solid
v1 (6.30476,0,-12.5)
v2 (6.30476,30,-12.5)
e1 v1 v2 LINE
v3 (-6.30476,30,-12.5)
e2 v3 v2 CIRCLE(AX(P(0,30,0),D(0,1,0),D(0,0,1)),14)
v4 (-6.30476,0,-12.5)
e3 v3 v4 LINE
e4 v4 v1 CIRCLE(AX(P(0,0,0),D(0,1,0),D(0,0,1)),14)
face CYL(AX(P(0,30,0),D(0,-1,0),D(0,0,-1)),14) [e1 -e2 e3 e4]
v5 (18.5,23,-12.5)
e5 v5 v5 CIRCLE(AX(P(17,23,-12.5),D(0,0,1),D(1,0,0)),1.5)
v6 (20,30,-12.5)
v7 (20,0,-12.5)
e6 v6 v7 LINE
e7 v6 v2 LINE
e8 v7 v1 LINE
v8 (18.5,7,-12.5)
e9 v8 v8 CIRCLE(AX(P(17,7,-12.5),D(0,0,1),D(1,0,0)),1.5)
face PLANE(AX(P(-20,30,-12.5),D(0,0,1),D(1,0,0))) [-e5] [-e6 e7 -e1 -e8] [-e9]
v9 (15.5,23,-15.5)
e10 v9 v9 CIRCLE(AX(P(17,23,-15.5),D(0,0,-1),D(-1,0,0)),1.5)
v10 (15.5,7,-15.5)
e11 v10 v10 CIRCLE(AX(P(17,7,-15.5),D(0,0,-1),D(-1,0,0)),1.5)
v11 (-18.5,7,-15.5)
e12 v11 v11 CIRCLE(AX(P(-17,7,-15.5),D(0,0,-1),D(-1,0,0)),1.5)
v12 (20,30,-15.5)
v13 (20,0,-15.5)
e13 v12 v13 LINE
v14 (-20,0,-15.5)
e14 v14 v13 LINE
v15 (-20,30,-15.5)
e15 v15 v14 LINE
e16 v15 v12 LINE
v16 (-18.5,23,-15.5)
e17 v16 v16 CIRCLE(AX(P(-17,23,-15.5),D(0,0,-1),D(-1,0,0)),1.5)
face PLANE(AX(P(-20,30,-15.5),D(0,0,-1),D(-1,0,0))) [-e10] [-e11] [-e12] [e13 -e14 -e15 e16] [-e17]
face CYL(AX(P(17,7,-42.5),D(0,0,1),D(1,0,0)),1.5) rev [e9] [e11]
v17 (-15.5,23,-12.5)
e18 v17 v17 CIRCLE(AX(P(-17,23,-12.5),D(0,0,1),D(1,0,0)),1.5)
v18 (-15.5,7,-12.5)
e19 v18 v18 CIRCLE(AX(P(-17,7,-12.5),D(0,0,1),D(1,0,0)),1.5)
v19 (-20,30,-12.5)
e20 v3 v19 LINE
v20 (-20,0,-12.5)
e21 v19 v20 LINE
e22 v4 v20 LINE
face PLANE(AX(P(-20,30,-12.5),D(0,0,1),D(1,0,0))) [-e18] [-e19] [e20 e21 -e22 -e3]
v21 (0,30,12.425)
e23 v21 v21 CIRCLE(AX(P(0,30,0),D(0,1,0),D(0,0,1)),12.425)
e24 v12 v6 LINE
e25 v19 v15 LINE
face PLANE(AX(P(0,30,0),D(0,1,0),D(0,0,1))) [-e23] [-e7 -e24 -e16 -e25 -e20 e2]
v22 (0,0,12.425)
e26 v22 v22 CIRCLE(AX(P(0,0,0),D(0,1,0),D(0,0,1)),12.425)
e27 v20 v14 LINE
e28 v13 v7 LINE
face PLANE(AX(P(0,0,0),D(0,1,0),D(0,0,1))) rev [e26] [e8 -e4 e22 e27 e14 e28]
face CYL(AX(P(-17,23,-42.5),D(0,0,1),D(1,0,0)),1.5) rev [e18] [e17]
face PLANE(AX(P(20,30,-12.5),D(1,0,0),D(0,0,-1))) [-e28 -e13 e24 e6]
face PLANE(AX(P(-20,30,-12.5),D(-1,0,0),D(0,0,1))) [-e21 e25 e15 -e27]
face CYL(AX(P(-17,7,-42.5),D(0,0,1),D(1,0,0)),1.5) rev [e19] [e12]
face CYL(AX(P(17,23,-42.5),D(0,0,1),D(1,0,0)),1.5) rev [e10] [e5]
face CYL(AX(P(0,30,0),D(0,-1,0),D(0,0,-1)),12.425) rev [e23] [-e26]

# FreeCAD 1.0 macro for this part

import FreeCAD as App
import Part
import Sketcher
from FreeCAD import Vector


def add_polygon(sketch, points):
    """Adds a closed chain of lines whose ends are joined by coincident constraints."""
    first, n = sketch.GeometryCount, len(points)
    for a, b in zip(points, points[1:] + points[:1]):
        sketch.addGeometry(Part.LineSegment(App.Vector(*a, 0), App.Vector(*b, 0)), False)
    for i in range(n):
        sketch.addConstraint(Sketcher.Constraint("Coincident", first + i, 2, first + (i + 1) % n, 1))

doc = App.newDocument("Part")
body = doc.addObject("PartDesign::Body", "Body")

# Sketch on XZ plane
sketch1 = body.newObject("Sketcher::SketchObject", "Sketch")
sketch1.AttachmentSupport = (doc.getObject("XZ_Plane"), [""])
sketch1.MapMode = "FlatFace"
sketch1.addGeometry([
    Part.Circle(Vector(0, 0, 0), Vector(0, 0, 1), 14),
    Part.Circle(Vector(0, 0, 0), Vector(0, 0, 1), 12.425),
], False)
sketch1.addConstraint([
    Sketcher.Constraint("Coincident", 0, 3, -1, 1),
    Sketcher.Constraint("Coincident", 1, 3, -1, 1),
    Sketcher.Constraint("Diameter", 0, 28.0),
    Sketcher.Constraint("Diameter", 1, 24.85),
])
pad1 = body.newObject("PartDesign::Pad", "Pad")
pad1.Profile = sketch1
pad1.Length = 30
pad1.Reversed = True

# Sketch on XZ plane
sketch2 = body.newObject("Sketcher::SketchObject", "Sketch001")
sketch2.AttachmentSupport = (doc.getObject("XZ_Plane"), [""])
sketch2.MapMode = "FlatFace"
add_polygon(sketch2, [(-20, -12.5), (-20, -15.5), (20, -15.5), (20, -12.5)])  # lines 0-3
sketch2.addConstraint([
    Sketcher.Constraint("Vertical", 0),
    Sketcher.Constraint("Horizontal", 1),
    Sketcher.Constraint("Vertical", 2),
    Sketcher.Constraint("Horizontal", 3),
    Sketcher.Constraint("DistanceX", 1, 1, 1, 2, 40.0),
    Sketcher.Constraint("DistanceY", 0, 2, 0, 1, 3.0),
    Sketcher.Constraint("DistanceX", 0, 2, -1, 1, 20.0),
    Sketcher.Constraint("DistanceY", 0, 2, -1, 1, 15.5),
])
pad2 = body.newObject("PartDesign::Pad", "Pad001")
pad2.Profile = sketch2
pad2.Length = 30
pad2.Reversed = True

# Sketch on XY plane
sketch3 = body.newObject("Sketcher::SketchObject", "Sketch002")
sketch3.AttachmentSupport = (doc.getObject("XY_Plane"), [""])
sketch3.MapMode = "FlatFace"
sketch3.AttachmentOffset = App.Placement(Vector(0, 0, -12.5), App.Rotation())
sketch3.addGeometry([
    Part.Circle(Vector(17, 23, 0), Vector(0, 0, 1), 1.5),
    Part.Circle(Vector(-17, 23, 0), Vector(0, 0, 1), 1.5),
    Part.Circle(Vector(17, 7, 0), Vector(0, 0, 1), 1.5),
    Part.Circle(Vector(-17, 7, 0), Vector(0, 0, 1), 1.5),
], False)
sketch3.addConstraint([
    Sketcher.Constraint("Equal", 0, 1),
    Sketcher.Constraint("Equal", 1, 2),
    Sketcher.Constraint("Equal", 2, 3),
    Sketcher.Constraint("Symmetric", 0, 3, 1, 3, -2),
    Sketcher.Constraint("Symmetric", 2, 3, 3, 3, -2),
    Sketcher.Constraint("Vertical", 0, 3, 2, 3),
    Sketcher.Constraint("Diameter", 0, 3.0),
    Sketcher.Constraint("DistanceX", -1, 1, 0, 3, 17.0),
    Sketcher.Constraint("DistanceY", -1, 1, 0, 3, 23.0),
    Sketcher.Constraint("DistanceY", -1, 1, 2, 3, 7.0),
])
pocket1 = body.newObject("PartDesign::Pocket", "Pocket")
pocket1.Profile = sketch3
pocket1.Length = 30

doc.recompute()
